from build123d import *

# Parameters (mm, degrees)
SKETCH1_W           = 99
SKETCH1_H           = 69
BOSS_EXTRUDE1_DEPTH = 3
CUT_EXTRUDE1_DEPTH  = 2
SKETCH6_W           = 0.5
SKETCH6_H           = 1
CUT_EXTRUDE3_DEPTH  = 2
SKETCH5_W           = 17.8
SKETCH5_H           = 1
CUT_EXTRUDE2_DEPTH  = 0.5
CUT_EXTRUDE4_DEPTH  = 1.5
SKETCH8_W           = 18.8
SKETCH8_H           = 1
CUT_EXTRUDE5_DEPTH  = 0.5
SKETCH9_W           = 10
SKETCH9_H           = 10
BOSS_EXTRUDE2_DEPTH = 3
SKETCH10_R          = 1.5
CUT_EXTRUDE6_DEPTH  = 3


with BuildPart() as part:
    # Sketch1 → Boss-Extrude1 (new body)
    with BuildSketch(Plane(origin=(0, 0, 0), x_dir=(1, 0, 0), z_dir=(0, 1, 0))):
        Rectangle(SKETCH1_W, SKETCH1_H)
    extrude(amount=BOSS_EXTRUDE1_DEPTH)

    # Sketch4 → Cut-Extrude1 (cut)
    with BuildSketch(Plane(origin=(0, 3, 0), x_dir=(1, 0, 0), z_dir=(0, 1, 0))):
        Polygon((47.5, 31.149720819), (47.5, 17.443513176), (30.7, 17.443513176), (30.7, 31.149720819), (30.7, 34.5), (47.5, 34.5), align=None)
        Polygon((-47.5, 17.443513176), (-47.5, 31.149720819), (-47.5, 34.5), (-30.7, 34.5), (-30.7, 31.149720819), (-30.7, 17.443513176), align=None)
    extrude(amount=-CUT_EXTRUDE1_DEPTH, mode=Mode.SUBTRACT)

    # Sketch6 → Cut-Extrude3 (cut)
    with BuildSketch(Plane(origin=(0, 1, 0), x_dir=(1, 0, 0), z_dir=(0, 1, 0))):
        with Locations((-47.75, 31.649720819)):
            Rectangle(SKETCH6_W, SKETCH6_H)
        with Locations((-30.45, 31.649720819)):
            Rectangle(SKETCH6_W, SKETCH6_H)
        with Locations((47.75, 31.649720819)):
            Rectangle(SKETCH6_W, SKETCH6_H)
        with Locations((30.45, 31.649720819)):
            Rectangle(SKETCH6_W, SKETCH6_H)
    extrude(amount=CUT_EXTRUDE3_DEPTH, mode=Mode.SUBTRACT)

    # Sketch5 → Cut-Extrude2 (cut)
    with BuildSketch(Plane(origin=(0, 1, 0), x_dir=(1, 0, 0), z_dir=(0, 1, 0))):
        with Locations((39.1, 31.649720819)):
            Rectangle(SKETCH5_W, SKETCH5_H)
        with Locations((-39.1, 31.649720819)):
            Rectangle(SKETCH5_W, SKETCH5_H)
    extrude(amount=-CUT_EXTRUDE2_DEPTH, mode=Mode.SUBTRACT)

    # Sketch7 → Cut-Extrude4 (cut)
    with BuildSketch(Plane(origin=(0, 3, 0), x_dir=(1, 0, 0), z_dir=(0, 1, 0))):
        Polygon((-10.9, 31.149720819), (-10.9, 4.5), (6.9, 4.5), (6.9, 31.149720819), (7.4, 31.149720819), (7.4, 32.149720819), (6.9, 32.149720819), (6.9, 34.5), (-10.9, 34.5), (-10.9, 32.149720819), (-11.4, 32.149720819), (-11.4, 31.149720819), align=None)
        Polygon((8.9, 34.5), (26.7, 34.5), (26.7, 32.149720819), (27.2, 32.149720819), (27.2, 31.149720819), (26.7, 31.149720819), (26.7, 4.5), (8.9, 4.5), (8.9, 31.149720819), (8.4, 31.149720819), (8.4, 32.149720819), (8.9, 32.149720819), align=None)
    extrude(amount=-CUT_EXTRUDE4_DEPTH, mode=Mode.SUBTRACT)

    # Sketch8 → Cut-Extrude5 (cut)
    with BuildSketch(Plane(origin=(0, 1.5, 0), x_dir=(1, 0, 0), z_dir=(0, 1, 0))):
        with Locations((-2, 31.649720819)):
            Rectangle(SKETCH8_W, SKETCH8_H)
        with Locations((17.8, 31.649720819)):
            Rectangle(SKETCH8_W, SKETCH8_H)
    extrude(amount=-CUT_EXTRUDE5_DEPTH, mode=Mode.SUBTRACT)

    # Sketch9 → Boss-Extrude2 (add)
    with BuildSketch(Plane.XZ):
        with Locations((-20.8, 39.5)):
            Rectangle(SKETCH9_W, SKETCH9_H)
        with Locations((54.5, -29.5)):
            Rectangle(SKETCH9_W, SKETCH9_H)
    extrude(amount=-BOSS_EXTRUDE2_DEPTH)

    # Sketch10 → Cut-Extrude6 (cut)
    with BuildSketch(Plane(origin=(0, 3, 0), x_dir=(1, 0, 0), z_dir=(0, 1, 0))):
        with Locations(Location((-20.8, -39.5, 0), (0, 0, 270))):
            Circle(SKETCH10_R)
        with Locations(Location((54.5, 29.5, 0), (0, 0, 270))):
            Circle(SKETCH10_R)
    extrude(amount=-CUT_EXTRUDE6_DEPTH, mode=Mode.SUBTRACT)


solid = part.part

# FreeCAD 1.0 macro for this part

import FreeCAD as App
import Part
import Sketcher

V = App.Vector
Q = App.Units.Quantity


def add_polygon(sketch, points):
    """Adds a closed chain of lines whose ends are joined by coincident constraints."""
    first, n = sketch.GeometryCount, len(points)
    for a, b in zip(points, points[1:] + points[:1]):
        sketch.addGeometry(Part.LineSegment(App.Vector(*a, 0), App.Vector(*b, 0)), False)
    for i in range(n):
        sketch.addConstraint(Sketcher.Constraint("Coincident", first + i, 2, first + (i + 1) % n, 1))

doc = App.newDocument("Part")
body = doc.addObject("PartDesign::Body", "Body")

sketch1 = doc.addObject("Sketcher::SketchObject", "Sketch")
body.addObject(sketch1)
sketch1.AttachmentSupport = (doc.XZ_Plane, [""])
sketch1.MapMode = "FlatFace"
add_polygon(sketch1, [(-49.5, -34.5), (-49.5, 34.5), (49.5, 34.5), (49.5, -34.5)])
sketch1.addConstraint([
    Sketcher.Constraint("Vertical", 0),
    Sketcher.Constraint("Horizontal", 1),
    Sketcher.Constraint("Vertical", 2),
    Sketcher.Constraint("Horizontal", 3),
    Sketcher.Constraint("Symmetric", 0, 2, 2, 2, -1, 1),
    Sketcher.Constraint("DistanceX", 1, 1, 1, 2, Q("99 mm")),
    Sketcher.Constraint("DistanceY", 0, 1, 0, 2, Q("69 mm")),
])
pad1 = doc.addObject("PartDesign::Pad", "Pad")
body.addObject(pad1)
pad1.Profile = sketch1
pad1.Length = 3
pad1.Reversed = True

sketch2 = doc.addObject("Sketcher::SketchObject", "Sketch001")
body.addObject(sketch2)
sketch2.AttachmentSupport = (doc.XZ_Plane, [""])
sketch2.MapMode = "FlatFace"
sketch2.AttachmentOffset = App.Placement(V(0, 0, -3), App.Rotation())
add_polygon(sketch2, [(47.5, -17.443513), (47.5, -34.5), (30.7, -34.5), (30.7, -17.443513)])
add_polygon(sketch2, [(-47.5, -34.5), (-47.5, -17.443513), (-30.7, -17.443513), (-30.7, -34.5)])
sketch2.addConstraint([
    Sketcher.Constraint("Vertical", 0),
    Sketcher.Constraint("Horizontal", 1),
    Sketcher.Constraint("Vertical", 2),
    Sketcher.Constraint("Horizontal", 3),
    Sketcher.Constraint("Vertical", 4),
    Sketcher.Constraint("Horizontal", 5),
    Sketcher.Constraint("Vertical", 6),
    Sketcher.Constraint("Horizontal", 7),
    Sketcher.Constraint("Symmetric", 3, 2, 4, 2, -2),
    Sketcher.Constraint("Symmetric", 1, 2, 6, 2, -2),
    Sketcher.Constraint("DistanceX", 1, 2, 1, 1, Q("16.8 mm")),
    Sketcher.Constraint("DistanceX", 4, 2, 3, 2, Q("95 mm")),
    Sketcher.Constraint("DistanceY", 0, 2, -1, 1, Q("34.5 mm")),
    Sketcher.Constraint("DistanceY", 0, 2, 0, 1, Q("17.056487 mm")),
])
pocket1 = doc.addObject("PartDesign::Pocket", "Pocket")
body.addObject(pocket1)
pocket1.Profile = sketch2
pocket1.Length = 2
pocket1.Reversed = True

sketch3 = doc.addObject("Sketcher::SketchObject", "Sketch002")
body.addObject(sketch3)
sketch3.AttachmentSupport = (doc.XZ_Plane, [""])
sketch3.MapMode = "FlatFace"
sketch3.AttachmentOffset = App.Placement(V(0, 0, -1), App.Rotation())
add_polygon(sketch3, [(-48, -32.149721), (-48, -31.149721), (-47.5, -31.149721), (-47.5, -32.149721)])
add_polygon(sketch3, [(-30.7, -32.149721), (-30.7, -31.149721), (-30.2, -31.149721), (-30.2, -32.149721)])
add_polygon(sketch3, [(47.5, -32.149721), (47.5, -31.149721), (48, -31.149721), (48, -32.149721)])
add_polygon(sketch3, [(30.2, -32.149721), (30.2, -31.149721), (30.7, -31.149721), (30.7, -32.149721)])
sketch3.addConstraint([
    Sketcher.Constraint("Vertical", 0),
    Sketcher.Constraint("Horizontal", 1),
    Sketcher.Constraint("Vertical", 2),
    Sketcher.Constraint("Horizontal", 3),
    Sketcher.Constraint("Vertical", 4),
    Sketcher.Constraint("Horizontal", 5),
    Sketcher.Constraint("Vertical", 6),
    Sketcher.Constraint("Horizontal", 7),
    Sketcher.Constraint("Vertical", 8),
    Sketcher.Constraint("Horizontal", 9),
    Sketcher.Constraint("Vertical", 10),
    Sketcher.Constraint("Horizontal", 11),
    Sketcher.Constraint("Vertical", 12),
    Sketcher.Constraint("Horizontal", 13),
    Sketcher.Constraint("Vertical", 14),
    Sketcher.Constraint("Horizontal", 15),
    Sketcher.Constraint("Symmetric", 1, 2, 8, 2, -2),
    Sketcher.Constraint("Symmetric", 3, 2, 10, 2, -2),
    Sketcher.Constraint("Symmetric", 5, 2, 12, 2, -2),
    Sketcher.Constraint("Symmetric", 7, 2, 14, 2, -2),
    Sketcher.Constraint("Horizontal", 1, 2, 4, 2),
    Sketcher.Constraint("Horizontal", 3, 2, 6, 2),
    Sketcher.Constraint("Equal", 3, 5),
    Sketcher.Constraint("DistanceY", 0, 1, 0, 2, Q("1 mm")),
    Sketcher.Constraint("DistanceX", 1, 1, 1, 2, Q("0.5 mm")),
    Sketcher.Constraint("DistanceX", 0, 2, -1, 1, Q("48 mm")),
    Sketcher.Constraint("DistanceX", 4, 2, -1, 1, Q("30.7 mm")),
    Sketcher.Constraint("DistanceY", 0, 2, -1, 1, Q("31.149721 mm")),
])
pocket2 = doc.addObject("PartDesign::Pocket", "Pocket001")
body.addObject(pocket2)
pocket2.Profile = sketch3
pocket2.Length = 2

sketch4 = doc.addObject("Sketcher::SketchObject", "Sketch003")
body.addObject(sketch4)
sketch4.AttachmentSupport = (doc.XZ_Plane, [""])
sketch4.MapMode = "FlatFace"
sketch4.AttachmentOffset = App.Placement(V(0, 0, -1), App.Rotation())
add_polygon(sketch4, [(30.2, -32.149721), (30.2, -31.149721), (48, -31.149721), (48, -32.149721)])
add_polygon(sketch4, [(-48, -32.149721), (-48, -31.149721), (-30.2, -31.149721), (-30.2, -32.149721)])
sketch4.addConstraint([
    Sketcher.Constraint("Vertical", 0),
    Sketcher.Constraint("Horizontal", 1),
    Sketcher.Constraint("Vertical", 2),
    Sketcher.Constraint("Horizontal", 3),
    Sketcher.Constraint("Vertical", 4),
    Sketcher.Constraint("Horizontal", 5),
    Sketcher.Constraint("Vertical", 6),
    Sketcher.Constraint("Horizontal", 7),
    Sketcher.Constraint("Symmetric", 1, 2, 4, 2, -2),
    Sketcher.Constraint("Symmetric", 3, 2, 6, 2, -2),
    Sketcher.Constraint("DistanceY", 0, 1, 0, 2, Q("1 mm")),
    Sketcher.Constraint("DistanceX", 1, 1, 1, 2, Q("17.8 mm")),
    Sketcher.Constraint("DistanceX", -1, 1, 1, 2, Q("48 mm")),
    Sketcher.Constraint("DistanceY", 0, 2, -1, 1, Q("31.149721 mm")),
])
pocket3 = doc.addObject("PartDesign::Pocket", "Pocket002")
body.addObject(pocket3)
pocket3.Profile = sketch4
pocket3.Length = 0.5
pocket3.Reversed = True

sketch5 = doc.addObject("Sketcher::SketchObject", "Sketch004")
body.addObject(sketch5)
sketch5.AttachmentSupport = (doc.XZ_Plane, [""])
sketch5.MapMode = "FlatFace"
sketch5.AttachmentOffset = App.Placement(V(0, 0, -3), App.Rotation())
add_polygon(sketch5, [(-10.9, -31.149721), (-10.9, -4.5), (6.9, -4.5), (6.9, -31.149721), (7.4, -31.149721), (7.4, -32.149721), (6.9, -32.149721), (6.9, -34.5), (-10.9, -34.5), (-10.9, -32.149721), (-11.4, -32.149721), (-11.4, -31.149721)])
add_polygon(sketch5, [(26.7, -34.5), (8.9, -34.5), (8.9, -32.149721), (8.4, -32.149721), (8.4, -31.149721), (8.9, -31.149721), (8.9, -4.5), (26.7, -4.5), (26.7, -31.149721), (27.2, -31.149721), (27.2, -32.149721), (26.7, -32.149721)])
sketch5.addConstraint([
    Sketcher.Constraint("Vertical", 0),
    Sketcher.Constraint("Horizontal", 1),
    Sketcher.Constraint("Vertical", 2),
    Sketcher.Constraint("Horizontal", 3),
    Sketcher.Constraint("Vertical", 4),
    Sketcher.Constraint("Horizontal", 5),
    Sketcher.Constraint("Vertical", 6),
    Sketcher.Constraint("Horizontal", 7),
    Sketcher.Constraint("Vertical", 8),
    Sketcher.Constraint("Horizontal", 9),
    Sketcher.Constraint("Vertical", 10),
    Sketcher.Constraint("Horizontal", 11),
    Sketcher.Constraint("Horizontal", 12),
    Sketcher.Constraint("Vertical", 13),
    Sketcher.Constraint("Horizontal", 14),
    Sketcher.Constraint("Vertical", 15),
    Sketcher.Constraint("Horizontal", 16),
    Sketcher.Constraint("Vertical", 17),
    Sketcher.Constraint("Horizontal", 18),
    Sketcher.Constraint("Vertical", 19),
    Sketcher.Constraint("Horizontal", 20),
    Sketcher.Constraint("Vertical", 21),
    Sketcher.Constraint("Horizontal", 22),
    Sketcher.Constraint("Vertical", 23),
    Sketcher.Constraint("Horizontal", 5, 2, 8, 2),
    Sketcher.Constraint("Horizontal", 3, 2, 10, 2),
    Sketcher.Constraint("Horizontal", 7, 2, 12, 2),
    Sketcher.Constraint("Horizontal", 9, 2, 13, 2),
    Sketcher.Constraint("Horizontal", 11, 2, 15, 2),
    Sketcher.Constraint("Horizontal", 1, 2, 17, 2),
    Sketcher.Constraint("Horizontal", 16, 2, 19, 2),
    Sketcher.Constraint("Horizontal", 14, 2, 21, 2),
    Sketcher.Constraint("Vertical", 2, 2, 5, 2),
    Sketcher.Constraint("Vertical", 0, 2, 7, 2),
    Sketcher.Constraint("Vertical", 13, 2, 16, 2),
    Sketcher.Constraint("Vertical", 19, 2, 22, 2),
    Sketcher.Constraint("Equal", 5, 9),
    Sketcher.Constraint("Equal", 7, 12),
    Sketcher.Constraint("Equal", 11, 14),
    Sketcher.Constraint("Equal", 16, 20),
    Sketcher.Constraint("DistanceY", 4, 2, 4, 1, Q("1 mm")),
    Sketcher.Constraint("DistanceX", 1, 1, 1, 2, Q("17.8 mm")),
    Sketcher.Constraint("DistanceX", 3, 1, 3, 2, Q("0.5 mm")),
    Sketcher.Constraint("DistanceY", 6, 2, 1, 2, Q("30 mm")),
    Sketcher.Constraint("DistanceX", 6, 2, 12, 2, Q("2 mm")),
    Sketcher.Constraint("DistanceX", 0, 2, -1, 1, Q("10.9 mm")),
    Sketcher.Constraint("DistanceY", 0, 2, -1, 1, Q("4.5 mm")),
    Sketcher.Constraint("DistanceY", 0, 1, 0, 2, Q("26.649721 mm")),
])
pocket4 = doc.addObject("PartDesign::Pocket", "Pocket003")
body.addObject(pocket4)
pocket4.Profile = sketch5
pocket4.Length = 1.5
pocket4.Reversed = True

sketch6 = doc.addObject("Sketcher::SketchObject", "Sketch005")
body.addObject(sketch6)
sketch6.AttachmentSupport = (doc.XZ_Plane, [""])
sketch6.MapMode = "FlatFace"
sketch6.AttachmentOffset = App.Placement(V(0, 0, -1.5), App.Rotation())
add_polygon(sketch6, [(-11.4, -32.149721), (-11.4, -31.149721), (7.4, -31.149721), (7.4, -32.149721)])
add_polygon(sketch6, [(8.4, -32.149721), (8.4, -31.149721), (27.2, -31.149721), (27.2, -32.149721)])
sketch6.addConstraint([
    Sketcher.Constraint("Vertical", 0),
    Sketcher.Constraint("Horizontal", 1),
    Sketcher.Constraint("Vertical", 2),
    Sketcher.Constraint("Horizontal", 3),
    Sketcher.Constraint("Vertical", 4),
    Sketcher.Constraint("Horizontal", 5),
    Sketcher.Constraint("Vertical", 6),
    Sketcher.Constraint("Horizontal", 7),
    Sketcher.Constraint("Horizontal", 1, 2, 4, 2),
    Sketcher.Constraint("Horizontal", 3, 2, 6, 2),
    Sketcher.Constraint("Equal", 3, 5),
    Sketcher.Constraint("DistanceY", 0, 1, 0, 2, Q("1 mm")),
    Sketcher.Constraint("DistanceX", 1, 1, 1, 2, Q("18.8 mm")),
    Sketcher.Constraint("DistanceX", 1, 2, 4, 2, Q("1 mm")),
    Sketcher.Constraint("DistanceX", 0, 2, -1, 1, Q("11.4 mm")),
    Sketcher.Constraint("DistanceY", 0, 2, -1, 1, Q("31.149721 mm")),
])
pocket5 = doc.addObject("PartDesign::Pocket", "Pocket004")
body.addObject(pocket5)
pocket5.Profile = sketch6
pocket5.Length = 0.5
pocket5.Reversed = True

sketch7 = doc.addObject("Sketcher::SketchObject", "Sketch006")
body.addObject(sketch7)
sketch7.AttachmentSupport = (doc.XZ_Plane, [""])
sketch7.MapMode = "FlatFace"
add_polygon(sketch7, [(-25.8, 44.5), (-25.8, 34.5), (-15.8, 34.5), (-15.8, 44.5)])
add_polygon(sketch7, [(49.5, -24.5), (49.5, -34.5), (59.5, -34.5), (59.5, -24.5)])
sketch7.addConstraint([
    Sketcher.Constraint("Vertical", 0),
    Sketcher.Constraint("Horizontal", 1),
    Sketcher.Constraint("Vertical", 2),
    Sketcher.Constraint("Horizontal", 3),
    Sketcher.Constraint("Vertical", 4),
    Sketcher.Constraint("Horizontal", 5),
    Sketcher.Constraint("Vertical", 6),
    Sketcher.Constraint("Horizontal", 7),
    Sketcher.Constraint("Equal", 3, 5),
    Sketcher.Constraint("Equal", 7, 0),
    Sketcher.Constraint("Equal", 2, 4),
    Sketcher.Constraint("DistanceX", 1, 1, 1, 2, Q("10 mm")),
    Sketcher.Constraint("DistanceY", 4, 2, 1, 2, Q("69 mm")),
    Sketcher.Constraint("DistanceX", 0, 2, -1, 1, Q("25.8 mm")),
    Sketcher.Constraint("DistanceY", -1, 1, 0, 2, Q("34.5 mm")),
    Sketcher.Constraint("DistanceX", -1, 1, 4, 2, Q("49.5 mm")),
])
pad2 = doc.addObject("PartDesign::Pad", "Pad001")
body.addObject(pad2)
pad2.Profile = sketch7
pad2.Length = 3
pad2.Reversed = True

sketch8 = doc.addObject("Sketcher::SketchObject", "Sketch007")
body.addObject(sketch8)
sketch8.AttachmentSupport = (doc.XZ_Plane, [""])
sketch8.MapMode = "FlatFace"
sketch8.AttachmentOffset = App.Placement(V(0, 0, -3), App.Rotation())
sketch8.addGeometry([
    Part.Circle(V(-20.8, 39.5, 0), V(0, 0, 1), 1.5),
    Part.Circle(V(54.5, -29.5, 0), V(0, 0, 1), 1.5),
], False)
sketch8.addConstraint([
    Sketcher.Constraint("Equal", 0, 1),
    Sketcher.Constraint("Diameter", 0, Q("3 mm")),
    Sketcher.Constraint("DistanceY", 1, 3, 0, 3, Q("69 mm")),
    Sketcher.Constraint("DistanceX", 0, 3, -1, 1, Q("20.8 mm")),
    Sketcher.Constraint("DistanceY", -1, 1, 0, 3, Q("39.5 mm")),
    Sketcher.Constraint("DistanceX", -1, 1, 1, 3, Q("54.5 mm")),
])
pocket6 = doc.addObject("PartDesign::Pocket", "Pocket005")
body.addObject(pocket6)
pocket6.Profile = sketch8
pocket6.Length = 3
pocket6.Reversed = True

doc.recompute()
